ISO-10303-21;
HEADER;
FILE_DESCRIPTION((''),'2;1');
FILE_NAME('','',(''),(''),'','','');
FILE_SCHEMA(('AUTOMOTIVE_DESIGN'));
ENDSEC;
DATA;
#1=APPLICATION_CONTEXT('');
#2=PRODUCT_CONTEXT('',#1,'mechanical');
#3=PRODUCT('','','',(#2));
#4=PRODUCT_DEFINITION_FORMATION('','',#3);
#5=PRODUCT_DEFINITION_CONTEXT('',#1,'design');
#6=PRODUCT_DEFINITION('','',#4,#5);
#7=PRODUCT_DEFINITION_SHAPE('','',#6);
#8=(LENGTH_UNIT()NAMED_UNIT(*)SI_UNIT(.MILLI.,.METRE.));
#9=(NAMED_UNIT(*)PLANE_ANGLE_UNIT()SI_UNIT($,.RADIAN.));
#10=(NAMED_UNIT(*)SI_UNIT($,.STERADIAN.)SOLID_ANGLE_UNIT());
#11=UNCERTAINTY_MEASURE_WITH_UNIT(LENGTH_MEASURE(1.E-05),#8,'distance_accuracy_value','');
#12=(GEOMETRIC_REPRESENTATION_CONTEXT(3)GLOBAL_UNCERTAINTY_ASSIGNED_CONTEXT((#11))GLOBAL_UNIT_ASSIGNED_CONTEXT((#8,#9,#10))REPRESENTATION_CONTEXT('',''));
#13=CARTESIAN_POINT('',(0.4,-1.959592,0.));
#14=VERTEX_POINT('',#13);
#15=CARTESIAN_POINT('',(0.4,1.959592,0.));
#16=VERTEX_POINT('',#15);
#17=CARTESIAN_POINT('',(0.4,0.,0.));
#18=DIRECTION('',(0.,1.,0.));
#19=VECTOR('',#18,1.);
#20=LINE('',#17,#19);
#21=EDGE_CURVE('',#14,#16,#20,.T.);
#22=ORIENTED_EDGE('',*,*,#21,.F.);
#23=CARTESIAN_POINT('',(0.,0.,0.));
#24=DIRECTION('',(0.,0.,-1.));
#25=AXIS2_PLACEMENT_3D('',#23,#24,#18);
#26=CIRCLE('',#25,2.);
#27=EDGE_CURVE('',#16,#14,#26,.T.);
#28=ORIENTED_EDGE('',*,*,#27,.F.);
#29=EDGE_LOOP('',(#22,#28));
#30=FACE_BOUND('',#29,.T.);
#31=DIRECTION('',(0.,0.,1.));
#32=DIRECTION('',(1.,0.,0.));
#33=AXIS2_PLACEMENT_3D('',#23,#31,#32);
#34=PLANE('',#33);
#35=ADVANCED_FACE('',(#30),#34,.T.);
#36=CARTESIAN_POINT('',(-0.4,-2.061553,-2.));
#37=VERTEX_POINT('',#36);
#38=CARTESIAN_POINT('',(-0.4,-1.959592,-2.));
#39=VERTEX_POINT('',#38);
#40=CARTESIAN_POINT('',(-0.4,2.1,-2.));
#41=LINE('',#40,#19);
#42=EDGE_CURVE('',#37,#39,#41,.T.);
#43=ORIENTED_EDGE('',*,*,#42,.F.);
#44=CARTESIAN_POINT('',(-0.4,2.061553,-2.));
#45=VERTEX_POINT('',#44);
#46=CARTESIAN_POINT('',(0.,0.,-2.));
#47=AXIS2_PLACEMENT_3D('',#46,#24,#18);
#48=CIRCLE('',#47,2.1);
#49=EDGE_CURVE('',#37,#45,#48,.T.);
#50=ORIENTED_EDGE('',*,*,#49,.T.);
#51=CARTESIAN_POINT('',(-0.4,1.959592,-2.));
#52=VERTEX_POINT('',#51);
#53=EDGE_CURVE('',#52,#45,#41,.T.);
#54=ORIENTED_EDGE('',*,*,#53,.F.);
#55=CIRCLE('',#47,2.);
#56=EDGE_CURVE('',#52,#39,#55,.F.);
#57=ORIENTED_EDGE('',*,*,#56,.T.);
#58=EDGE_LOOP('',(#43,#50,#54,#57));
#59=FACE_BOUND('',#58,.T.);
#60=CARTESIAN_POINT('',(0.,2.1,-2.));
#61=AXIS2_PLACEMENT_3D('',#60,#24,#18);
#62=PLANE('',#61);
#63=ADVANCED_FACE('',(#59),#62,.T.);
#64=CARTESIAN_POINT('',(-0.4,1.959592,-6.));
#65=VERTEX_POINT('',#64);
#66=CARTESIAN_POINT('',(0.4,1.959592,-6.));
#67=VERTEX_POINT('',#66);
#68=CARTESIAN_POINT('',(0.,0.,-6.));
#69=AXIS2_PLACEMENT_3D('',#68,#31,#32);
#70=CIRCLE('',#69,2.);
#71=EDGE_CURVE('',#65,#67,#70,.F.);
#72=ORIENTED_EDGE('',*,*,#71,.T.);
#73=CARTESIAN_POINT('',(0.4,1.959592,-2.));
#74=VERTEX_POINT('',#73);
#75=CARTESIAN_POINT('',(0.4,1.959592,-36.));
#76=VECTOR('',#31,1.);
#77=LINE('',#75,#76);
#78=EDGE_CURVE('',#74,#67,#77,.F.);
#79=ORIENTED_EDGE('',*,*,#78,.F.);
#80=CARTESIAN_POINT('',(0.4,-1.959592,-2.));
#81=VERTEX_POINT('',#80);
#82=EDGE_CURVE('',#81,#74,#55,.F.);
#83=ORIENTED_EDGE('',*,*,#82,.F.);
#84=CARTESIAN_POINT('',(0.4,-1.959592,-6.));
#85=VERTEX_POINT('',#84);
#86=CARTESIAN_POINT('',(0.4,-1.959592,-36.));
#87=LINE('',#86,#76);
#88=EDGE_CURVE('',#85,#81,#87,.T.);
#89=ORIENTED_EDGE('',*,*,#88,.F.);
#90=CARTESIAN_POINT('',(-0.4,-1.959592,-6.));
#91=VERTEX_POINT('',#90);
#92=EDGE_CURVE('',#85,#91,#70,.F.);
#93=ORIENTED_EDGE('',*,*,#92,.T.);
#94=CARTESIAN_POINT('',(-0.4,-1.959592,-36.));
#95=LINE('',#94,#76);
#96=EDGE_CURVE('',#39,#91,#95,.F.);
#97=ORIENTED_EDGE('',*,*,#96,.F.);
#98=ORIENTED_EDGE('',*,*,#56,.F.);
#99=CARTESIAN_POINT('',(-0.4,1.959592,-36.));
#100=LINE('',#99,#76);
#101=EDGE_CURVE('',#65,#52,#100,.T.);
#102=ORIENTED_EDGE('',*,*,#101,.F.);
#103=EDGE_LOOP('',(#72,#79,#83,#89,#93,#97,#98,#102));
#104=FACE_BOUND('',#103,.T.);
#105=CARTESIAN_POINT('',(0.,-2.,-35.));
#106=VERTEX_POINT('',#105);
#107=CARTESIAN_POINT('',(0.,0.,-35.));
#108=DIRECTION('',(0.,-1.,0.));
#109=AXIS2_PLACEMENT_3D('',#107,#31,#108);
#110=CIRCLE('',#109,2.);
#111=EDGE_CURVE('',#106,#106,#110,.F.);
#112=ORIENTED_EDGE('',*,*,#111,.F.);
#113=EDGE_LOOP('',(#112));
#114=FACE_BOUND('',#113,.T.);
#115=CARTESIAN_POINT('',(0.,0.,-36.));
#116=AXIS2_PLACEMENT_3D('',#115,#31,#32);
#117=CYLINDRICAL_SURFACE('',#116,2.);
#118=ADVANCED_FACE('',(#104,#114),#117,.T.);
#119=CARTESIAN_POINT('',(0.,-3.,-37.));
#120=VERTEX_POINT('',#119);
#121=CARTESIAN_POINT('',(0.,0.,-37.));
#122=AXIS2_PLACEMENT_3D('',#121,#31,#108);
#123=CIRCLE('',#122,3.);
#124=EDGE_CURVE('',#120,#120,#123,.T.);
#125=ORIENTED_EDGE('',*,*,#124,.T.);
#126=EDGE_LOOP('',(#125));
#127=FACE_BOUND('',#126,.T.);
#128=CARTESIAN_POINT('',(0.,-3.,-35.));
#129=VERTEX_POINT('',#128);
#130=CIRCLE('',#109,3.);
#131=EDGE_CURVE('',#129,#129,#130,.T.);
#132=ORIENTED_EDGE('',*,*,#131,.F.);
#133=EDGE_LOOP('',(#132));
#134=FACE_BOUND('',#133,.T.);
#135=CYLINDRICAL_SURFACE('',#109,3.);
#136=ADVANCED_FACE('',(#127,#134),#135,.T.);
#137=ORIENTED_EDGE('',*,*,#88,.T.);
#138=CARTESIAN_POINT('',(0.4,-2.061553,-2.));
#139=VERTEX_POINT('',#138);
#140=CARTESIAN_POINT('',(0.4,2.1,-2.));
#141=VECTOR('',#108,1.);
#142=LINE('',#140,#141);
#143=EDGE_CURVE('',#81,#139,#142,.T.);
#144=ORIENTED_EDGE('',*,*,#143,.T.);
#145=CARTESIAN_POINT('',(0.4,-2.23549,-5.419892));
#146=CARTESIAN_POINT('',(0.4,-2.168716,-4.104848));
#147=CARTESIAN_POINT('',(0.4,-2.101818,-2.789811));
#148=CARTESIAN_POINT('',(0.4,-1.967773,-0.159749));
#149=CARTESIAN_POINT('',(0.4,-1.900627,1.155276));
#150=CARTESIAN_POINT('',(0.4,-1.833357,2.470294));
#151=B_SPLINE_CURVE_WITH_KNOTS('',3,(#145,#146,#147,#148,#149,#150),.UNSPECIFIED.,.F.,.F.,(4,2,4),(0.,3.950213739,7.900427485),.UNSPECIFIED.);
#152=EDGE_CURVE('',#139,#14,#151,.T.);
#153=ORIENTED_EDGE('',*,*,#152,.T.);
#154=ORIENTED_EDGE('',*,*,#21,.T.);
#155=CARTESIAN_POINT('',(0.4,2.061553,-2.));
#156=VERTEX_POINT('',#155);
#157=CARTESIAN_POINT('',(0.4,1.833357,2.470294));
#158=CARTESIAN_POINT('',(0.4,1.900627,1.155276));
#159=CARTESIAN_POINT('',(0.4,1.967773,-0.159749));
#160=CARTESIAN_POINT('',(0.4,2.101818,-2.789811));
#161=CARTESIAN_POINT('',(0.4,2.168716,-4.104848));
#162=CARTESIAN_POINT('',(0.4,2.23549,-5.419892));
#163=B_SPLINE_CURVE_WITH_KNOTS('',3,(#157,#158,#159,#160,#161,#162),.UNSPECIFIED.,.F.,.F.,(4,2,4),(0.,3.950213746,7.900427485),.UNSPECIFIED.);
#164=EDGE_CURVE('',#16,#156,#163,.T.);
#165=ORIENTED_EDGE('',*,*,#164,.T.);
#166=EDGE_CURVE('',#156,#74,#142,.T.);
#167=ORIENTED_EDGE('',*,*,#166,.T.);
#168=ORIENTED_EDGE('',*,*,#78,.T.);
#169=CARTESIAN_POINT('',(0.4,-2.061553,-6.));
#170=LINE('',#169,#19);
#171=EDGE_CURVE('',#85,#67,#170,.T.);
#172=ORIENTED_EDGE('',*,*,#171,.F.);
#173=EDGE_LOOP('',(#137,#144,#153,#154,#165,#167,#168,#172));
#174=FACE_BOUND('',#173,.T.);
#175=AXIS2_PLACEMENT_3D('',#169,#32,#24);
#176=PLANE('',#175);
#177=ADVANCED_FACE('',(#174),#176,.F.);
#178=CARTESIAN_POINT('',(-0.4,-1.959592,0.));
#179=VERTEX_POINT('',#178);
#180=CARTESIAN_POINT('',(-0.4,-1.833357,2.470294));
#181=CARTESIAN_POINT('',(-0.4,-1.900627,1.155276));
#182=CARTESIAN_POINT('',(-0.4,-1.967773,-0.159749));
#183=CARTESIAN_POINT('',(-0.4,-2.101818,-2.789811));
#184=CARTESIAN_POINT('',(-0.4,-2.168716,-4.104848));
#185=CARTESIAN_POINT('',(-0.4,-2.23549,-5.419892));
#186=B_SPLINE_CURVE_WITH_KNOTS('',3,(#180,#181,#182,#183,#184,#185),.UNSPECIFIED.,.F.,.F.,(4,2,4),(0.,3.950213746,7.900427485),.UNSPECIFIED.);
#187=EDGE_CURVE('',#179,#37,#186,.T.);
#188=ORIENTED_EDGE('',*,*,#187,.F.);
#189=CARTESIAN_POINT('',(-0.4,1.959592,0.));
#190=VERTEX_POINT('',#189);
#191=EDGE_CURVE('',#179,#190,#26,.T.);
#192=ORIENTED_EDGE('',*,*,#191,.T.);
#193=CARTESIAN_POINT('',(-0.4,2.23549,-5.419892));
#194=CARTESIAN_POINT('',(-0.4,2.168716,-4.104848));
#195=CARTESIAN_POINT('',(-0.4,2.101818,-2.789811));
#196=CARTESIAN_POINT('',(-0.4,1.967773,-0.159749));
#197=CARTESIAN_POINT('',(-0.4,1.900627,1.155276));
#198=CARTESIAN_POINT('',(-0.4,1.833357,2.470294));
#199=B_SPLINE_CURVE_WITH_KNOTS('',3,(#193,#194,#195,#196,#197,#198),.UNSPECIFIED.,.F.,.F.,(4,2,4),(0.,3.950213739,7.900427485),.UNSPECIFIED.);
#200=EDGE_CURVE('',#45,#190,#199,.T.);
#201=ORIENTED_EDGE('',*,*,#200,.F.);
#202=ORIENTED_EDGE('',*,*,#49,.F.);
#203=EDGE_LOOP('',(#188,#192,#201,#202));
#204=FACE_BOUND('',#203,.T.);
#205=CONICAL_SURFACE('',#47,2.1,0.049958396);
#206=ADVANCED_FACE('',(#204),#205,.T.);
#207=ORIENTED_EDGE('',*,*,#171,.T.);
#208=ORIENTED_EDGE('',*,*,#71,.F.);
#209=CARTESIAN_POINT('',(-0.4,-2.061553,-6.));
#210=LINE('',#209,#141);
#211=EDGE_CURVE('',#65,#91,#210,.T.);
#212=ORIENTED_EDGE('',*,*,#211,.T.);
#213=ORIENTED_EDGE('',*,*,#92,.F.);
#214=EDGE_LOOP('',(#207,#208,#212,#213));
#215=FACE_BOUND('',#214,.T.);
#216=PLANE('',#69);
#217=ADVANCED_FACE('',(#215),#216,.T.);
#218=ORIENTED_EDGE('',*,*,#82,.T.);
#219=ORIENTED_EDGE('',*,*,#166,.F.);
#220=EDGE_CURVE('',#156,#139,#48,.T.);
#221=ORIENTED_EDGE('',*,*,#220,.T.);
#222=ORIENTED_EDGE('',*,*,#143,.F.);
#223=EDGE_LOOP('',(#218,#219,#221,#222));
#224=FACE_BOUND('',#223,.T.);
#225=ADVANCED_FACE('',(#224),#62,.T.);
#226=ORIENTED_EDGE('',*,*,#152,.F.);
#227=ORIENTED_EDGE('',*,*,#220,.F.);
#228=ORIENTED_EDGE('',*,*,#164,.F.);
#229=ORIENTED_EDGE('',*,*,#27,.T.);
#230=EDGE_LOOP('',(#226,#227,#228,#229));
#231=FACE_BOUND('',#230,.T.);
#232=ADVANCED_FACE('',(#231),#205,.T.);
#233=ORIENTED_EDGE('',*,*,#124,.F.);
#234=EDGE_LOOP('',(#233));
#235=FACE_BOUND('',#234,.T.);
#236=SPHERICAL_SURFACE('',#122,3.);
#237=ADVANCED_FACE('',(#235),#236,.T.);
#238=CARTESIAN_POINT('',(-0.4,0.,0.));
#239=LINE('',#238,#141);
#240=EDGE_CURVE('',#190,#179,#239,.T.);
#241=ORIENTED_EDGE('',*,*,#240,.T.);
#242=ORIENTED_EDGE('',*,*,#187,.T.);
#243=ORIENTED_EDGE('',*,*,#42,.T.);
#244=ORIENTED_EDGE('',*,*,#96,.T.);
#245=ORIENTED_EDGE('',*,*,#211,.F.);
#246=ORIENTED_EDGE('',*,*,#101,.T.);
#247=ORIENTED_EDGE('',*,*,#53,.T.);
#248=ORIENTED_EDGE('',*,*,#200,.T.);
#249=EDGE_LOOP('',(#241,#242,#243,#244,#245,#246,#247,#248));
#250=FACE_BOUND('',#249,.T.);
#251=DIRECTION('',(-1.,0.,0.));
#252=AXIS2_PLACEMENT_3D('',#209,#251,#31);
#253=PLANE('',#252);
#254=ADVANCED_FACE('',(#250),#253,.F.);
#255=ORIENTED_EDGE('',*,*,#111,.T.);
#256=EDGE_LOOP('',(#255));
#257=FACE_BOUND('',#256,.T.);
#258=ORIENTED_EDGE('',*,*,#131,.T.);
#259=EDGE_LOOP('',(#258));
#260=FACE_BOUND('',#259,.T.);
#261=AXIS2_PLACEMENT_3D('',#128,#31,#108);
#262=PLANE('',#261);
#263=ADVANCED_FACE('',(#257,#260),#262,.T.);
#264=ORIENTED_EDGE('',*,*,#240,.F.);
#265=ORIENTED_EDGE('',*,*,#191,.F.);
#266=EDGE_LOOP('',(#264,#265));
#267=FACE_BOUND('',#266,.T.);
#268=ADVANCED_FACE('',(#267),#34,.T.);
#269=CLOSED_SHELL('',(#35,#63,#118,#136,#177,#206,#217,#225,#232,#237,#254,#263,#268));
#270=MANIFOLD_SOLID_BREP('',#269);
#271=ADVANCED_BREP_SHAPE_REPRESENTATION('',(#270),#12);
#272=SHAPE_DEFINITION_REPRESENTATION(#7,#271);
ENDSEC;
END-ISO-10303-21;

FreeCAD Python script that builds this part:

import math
import FreeCAD as App
import Part
import Sketcher

V = App.Vector
Q = App.Units.Quantity


def add_polygon(sketch, points):
    """Adds a closed chain of lines whose ends are joined by coincident constraints."""
    first, n = sketch.GeometryCount, len(points)
    for a, b in zip(points, points[1:] + points[:1]):
        sketch.addGeometry(Part.LineSegment(App.Vector(*a, 0), App.Vector(*b, 0)), False)
    for i in range(n):
        sketch.addConstraint(Sketcher.Constraint("Coincident", first + i, 2, first + (i + 1) % n, 1))

doc = App.newDocument("Part")
body = doc.addObject("PartDesign::Body", "Body")

sketch1 = body.newObject("Sketcher::SketchObject", "Sketch")
sketch1.AttachmentSupport = (doc.getObject("XY_Plane"), [""])
sketch1.MapMode = "FlatFace"
sketch1.addGeometry(Part.Circle(V(0, 0, 0), V(0, 0, 1), 2), False)
sketch1.addConstraint(Sketcher.Constraint("Coincident", 0, 3, -1, 1))
sketch1.addConstraint(Sketcher.Constraint("Diameter", 0, Q("4 mm")))
pad1 = body.newObject("PartDesign::Pad", "Pad")
pad1.Profile = sketch1
pad1.Length = 36
pad1.Reversed = True

sketch2 = body.newObject("Sketcher::SketchObject", "Sketch001")
sketch2.AttachmentSupport = (doc.getObject("YZ_Plane"), [""])
sketch2.MapMode = "FlatFace"
sketch2.addGeometry(Part.LineSegment(V(0, -40, 0), V(0, -35, 0)), False)
sketch2.addGeometry(Part.LineSegment(V(0, -35, 0), V(-3, -35, 0)), False)
sketch2.addGeometry(Part.LineSegment(V(-3, -35, 0), V(-3, -37, 0)), False)
sketch2.addGeometry(Part.ArcOfCircle(Part.Circle(V(0, -37, 0), V(0, 0, 1), 3), math.radians(180), math.radians(270)), False)
sketch2.addConstraint(Sketcher.Constraint("Coincident", 0, 2, 1, 1))
sketch2.addConstraint(Sketcher.Constraint("Coincident", 1, 2, 2, 1))
sketch2.addConstraint(Sketcher.Constraint("Tangent", 2, 2, 3, 1))
sketch2.addConstraint(Sketcher.Constraint("Coincident", 3, 2, 0, 1))
sketch2.addConstraint(Sketcher.Constraint("Vertical", 0))
sketch2.addConstraint(Sketcher.Constraint("Horizontal", 1))
sketch2.addConstraint(Sketcher.Constraint("Vertical", 2))
sketch2.addConstraint(Sketcher.Constraint("PointOnObject", 3, 3, -2))
sketch2.addConstraint(Sketcher.Constraint("PointOnObject", 0, 2, -2))
sketch2.addConstraint(Sketcher.Constraint("Radius", 3, Q("3 mm")))
sketch2.addConstraint(Sketcher.Constraint("DistanceY", 0, 1, 0, 2, Q("5 mm")))
sketch2.addConstraint(Sketcher.Constraint("DistanceY", 3, 3, -1, 1, Q("37 mm")))
revolution = body.newObject("PartDesign::Revolution", "Revolution")
revolution.Profile = sketch2
revolution.ReferenceAxis = (sketch2, ["V_Axis"])
revolution.Angle = 360

sketch3 = body.newObject("Sketcher::SketchObject", "Sketch002")
sketch3.AttachmentSupport = (doc.getObject("YZ_Plane"), [""])
sketch3.MapMode = "FlatFace"
add_polygon(sketch3, [(2, 0), (0, 0), (0, -2), (2.1, -2)])
sketch3.addConstraint(Sketcher.Constraint("Horizontal", 0))
sketch3.addConstraint(Sketcher.Constraint("Vertical", 1))
sketch3.addConstraint(Sketcher.Constraint("Horizontal", 2))
sketch3.addConstraint(Sketcher.Constraint("Coincident", 0, 2, -1, 1))
sketch3.addConstraint(Sketcher.Constraint("Equal", 0, 1))
sketch3.addConstraint(Sketcher.Constraint("DistanceX", 0, 2, 0, 1, Q("2 mm")))
sketch3.addConstraint(Sketcher.Constraint("DistanceX", 2, 1, 2, 2, Q("2.1 mm")))
revolution2 = body.newObject("PartDesign::Revolution", "Revolution001")
revolution2.Profile = sketch3
revolution2.ReferenceAxis = (sketch3, ["V_Axis"])
revolution2.Angle = 360

sketch4 = body.newObject("Sketcher::SketchObject", "Sketch003")
sketch4.AttachmentSupport = (doc.getObject("XY_Plane"), [""])
sketch4.MapMode = "FlatFace"
sketch4.addGeometry(Part.LineSegment(V(-0.4, 2.1, 0), V(-0.4, -2.1, 0)), False)
sketch4.addGeometry(Part.ArcOfCircle(Part.Circle(V(0, 0, 0), V(0, 0, 1), 2.1), math.radians(-101), math.radians(-79)), False)
sketch4.addGeometry(Part.LineSegment(V(0.4, -2.1, 0), V(0.4, 2.1, 0)), False)
sketch4.addGeometry(Part.ArcOfCircle(Part.Circle(V(0, 0, 0), V(0, 0, 1), 2.1), math.radians(79), math.radians(101)), False)
sketch4.addConstraint(Sketcher.Constraint("Coincident", 0, 2, 1, 1))
sketch4.addConstraint(Sketcher.Constraint("Coincident", 1, 2, 2, 1))
sketch4.addConstraint(Sketcher.Constraint("Coincident", 2, 2, 3, 1))
sketch4.addConstraint(Sketcher.Constraint("Coincident", 3, 2, 0, 1))
sketch4.addConstraint(Sketcher.Constraint("Vertical", 0))
sketch4.addConstraint(Sketcher.Constraint("Vertical", 2))
sketch4.addConstraint(Sketcher.Constraint("Coincident", 1, 3, -1, 1))
sketch4.addConstraint(Sketcher.Constraint("Coincident", 3, 3, -1, 1))
sketch4.addConstraint(Sketcher.Constraint("Equal", 1, 3))
sketch4.addConstraint(Sketcher.Constraint("Horizontal", 0, 2, 1, 2))
sketch4.addConstraint(Sketcher.Constraint("Radius", 1, Q("2.1 mm")))
sketch4.addConstraint(Sketcher.Constraint("DistanceX", 0, 2, -1, 1, Q("0.4 mm")))
pocket1 = body.newObject("PartDesign::Pocket", "Pocket")
pocket1.Profile = sketch4
pocket1.Length = 6

doc.recompute()
